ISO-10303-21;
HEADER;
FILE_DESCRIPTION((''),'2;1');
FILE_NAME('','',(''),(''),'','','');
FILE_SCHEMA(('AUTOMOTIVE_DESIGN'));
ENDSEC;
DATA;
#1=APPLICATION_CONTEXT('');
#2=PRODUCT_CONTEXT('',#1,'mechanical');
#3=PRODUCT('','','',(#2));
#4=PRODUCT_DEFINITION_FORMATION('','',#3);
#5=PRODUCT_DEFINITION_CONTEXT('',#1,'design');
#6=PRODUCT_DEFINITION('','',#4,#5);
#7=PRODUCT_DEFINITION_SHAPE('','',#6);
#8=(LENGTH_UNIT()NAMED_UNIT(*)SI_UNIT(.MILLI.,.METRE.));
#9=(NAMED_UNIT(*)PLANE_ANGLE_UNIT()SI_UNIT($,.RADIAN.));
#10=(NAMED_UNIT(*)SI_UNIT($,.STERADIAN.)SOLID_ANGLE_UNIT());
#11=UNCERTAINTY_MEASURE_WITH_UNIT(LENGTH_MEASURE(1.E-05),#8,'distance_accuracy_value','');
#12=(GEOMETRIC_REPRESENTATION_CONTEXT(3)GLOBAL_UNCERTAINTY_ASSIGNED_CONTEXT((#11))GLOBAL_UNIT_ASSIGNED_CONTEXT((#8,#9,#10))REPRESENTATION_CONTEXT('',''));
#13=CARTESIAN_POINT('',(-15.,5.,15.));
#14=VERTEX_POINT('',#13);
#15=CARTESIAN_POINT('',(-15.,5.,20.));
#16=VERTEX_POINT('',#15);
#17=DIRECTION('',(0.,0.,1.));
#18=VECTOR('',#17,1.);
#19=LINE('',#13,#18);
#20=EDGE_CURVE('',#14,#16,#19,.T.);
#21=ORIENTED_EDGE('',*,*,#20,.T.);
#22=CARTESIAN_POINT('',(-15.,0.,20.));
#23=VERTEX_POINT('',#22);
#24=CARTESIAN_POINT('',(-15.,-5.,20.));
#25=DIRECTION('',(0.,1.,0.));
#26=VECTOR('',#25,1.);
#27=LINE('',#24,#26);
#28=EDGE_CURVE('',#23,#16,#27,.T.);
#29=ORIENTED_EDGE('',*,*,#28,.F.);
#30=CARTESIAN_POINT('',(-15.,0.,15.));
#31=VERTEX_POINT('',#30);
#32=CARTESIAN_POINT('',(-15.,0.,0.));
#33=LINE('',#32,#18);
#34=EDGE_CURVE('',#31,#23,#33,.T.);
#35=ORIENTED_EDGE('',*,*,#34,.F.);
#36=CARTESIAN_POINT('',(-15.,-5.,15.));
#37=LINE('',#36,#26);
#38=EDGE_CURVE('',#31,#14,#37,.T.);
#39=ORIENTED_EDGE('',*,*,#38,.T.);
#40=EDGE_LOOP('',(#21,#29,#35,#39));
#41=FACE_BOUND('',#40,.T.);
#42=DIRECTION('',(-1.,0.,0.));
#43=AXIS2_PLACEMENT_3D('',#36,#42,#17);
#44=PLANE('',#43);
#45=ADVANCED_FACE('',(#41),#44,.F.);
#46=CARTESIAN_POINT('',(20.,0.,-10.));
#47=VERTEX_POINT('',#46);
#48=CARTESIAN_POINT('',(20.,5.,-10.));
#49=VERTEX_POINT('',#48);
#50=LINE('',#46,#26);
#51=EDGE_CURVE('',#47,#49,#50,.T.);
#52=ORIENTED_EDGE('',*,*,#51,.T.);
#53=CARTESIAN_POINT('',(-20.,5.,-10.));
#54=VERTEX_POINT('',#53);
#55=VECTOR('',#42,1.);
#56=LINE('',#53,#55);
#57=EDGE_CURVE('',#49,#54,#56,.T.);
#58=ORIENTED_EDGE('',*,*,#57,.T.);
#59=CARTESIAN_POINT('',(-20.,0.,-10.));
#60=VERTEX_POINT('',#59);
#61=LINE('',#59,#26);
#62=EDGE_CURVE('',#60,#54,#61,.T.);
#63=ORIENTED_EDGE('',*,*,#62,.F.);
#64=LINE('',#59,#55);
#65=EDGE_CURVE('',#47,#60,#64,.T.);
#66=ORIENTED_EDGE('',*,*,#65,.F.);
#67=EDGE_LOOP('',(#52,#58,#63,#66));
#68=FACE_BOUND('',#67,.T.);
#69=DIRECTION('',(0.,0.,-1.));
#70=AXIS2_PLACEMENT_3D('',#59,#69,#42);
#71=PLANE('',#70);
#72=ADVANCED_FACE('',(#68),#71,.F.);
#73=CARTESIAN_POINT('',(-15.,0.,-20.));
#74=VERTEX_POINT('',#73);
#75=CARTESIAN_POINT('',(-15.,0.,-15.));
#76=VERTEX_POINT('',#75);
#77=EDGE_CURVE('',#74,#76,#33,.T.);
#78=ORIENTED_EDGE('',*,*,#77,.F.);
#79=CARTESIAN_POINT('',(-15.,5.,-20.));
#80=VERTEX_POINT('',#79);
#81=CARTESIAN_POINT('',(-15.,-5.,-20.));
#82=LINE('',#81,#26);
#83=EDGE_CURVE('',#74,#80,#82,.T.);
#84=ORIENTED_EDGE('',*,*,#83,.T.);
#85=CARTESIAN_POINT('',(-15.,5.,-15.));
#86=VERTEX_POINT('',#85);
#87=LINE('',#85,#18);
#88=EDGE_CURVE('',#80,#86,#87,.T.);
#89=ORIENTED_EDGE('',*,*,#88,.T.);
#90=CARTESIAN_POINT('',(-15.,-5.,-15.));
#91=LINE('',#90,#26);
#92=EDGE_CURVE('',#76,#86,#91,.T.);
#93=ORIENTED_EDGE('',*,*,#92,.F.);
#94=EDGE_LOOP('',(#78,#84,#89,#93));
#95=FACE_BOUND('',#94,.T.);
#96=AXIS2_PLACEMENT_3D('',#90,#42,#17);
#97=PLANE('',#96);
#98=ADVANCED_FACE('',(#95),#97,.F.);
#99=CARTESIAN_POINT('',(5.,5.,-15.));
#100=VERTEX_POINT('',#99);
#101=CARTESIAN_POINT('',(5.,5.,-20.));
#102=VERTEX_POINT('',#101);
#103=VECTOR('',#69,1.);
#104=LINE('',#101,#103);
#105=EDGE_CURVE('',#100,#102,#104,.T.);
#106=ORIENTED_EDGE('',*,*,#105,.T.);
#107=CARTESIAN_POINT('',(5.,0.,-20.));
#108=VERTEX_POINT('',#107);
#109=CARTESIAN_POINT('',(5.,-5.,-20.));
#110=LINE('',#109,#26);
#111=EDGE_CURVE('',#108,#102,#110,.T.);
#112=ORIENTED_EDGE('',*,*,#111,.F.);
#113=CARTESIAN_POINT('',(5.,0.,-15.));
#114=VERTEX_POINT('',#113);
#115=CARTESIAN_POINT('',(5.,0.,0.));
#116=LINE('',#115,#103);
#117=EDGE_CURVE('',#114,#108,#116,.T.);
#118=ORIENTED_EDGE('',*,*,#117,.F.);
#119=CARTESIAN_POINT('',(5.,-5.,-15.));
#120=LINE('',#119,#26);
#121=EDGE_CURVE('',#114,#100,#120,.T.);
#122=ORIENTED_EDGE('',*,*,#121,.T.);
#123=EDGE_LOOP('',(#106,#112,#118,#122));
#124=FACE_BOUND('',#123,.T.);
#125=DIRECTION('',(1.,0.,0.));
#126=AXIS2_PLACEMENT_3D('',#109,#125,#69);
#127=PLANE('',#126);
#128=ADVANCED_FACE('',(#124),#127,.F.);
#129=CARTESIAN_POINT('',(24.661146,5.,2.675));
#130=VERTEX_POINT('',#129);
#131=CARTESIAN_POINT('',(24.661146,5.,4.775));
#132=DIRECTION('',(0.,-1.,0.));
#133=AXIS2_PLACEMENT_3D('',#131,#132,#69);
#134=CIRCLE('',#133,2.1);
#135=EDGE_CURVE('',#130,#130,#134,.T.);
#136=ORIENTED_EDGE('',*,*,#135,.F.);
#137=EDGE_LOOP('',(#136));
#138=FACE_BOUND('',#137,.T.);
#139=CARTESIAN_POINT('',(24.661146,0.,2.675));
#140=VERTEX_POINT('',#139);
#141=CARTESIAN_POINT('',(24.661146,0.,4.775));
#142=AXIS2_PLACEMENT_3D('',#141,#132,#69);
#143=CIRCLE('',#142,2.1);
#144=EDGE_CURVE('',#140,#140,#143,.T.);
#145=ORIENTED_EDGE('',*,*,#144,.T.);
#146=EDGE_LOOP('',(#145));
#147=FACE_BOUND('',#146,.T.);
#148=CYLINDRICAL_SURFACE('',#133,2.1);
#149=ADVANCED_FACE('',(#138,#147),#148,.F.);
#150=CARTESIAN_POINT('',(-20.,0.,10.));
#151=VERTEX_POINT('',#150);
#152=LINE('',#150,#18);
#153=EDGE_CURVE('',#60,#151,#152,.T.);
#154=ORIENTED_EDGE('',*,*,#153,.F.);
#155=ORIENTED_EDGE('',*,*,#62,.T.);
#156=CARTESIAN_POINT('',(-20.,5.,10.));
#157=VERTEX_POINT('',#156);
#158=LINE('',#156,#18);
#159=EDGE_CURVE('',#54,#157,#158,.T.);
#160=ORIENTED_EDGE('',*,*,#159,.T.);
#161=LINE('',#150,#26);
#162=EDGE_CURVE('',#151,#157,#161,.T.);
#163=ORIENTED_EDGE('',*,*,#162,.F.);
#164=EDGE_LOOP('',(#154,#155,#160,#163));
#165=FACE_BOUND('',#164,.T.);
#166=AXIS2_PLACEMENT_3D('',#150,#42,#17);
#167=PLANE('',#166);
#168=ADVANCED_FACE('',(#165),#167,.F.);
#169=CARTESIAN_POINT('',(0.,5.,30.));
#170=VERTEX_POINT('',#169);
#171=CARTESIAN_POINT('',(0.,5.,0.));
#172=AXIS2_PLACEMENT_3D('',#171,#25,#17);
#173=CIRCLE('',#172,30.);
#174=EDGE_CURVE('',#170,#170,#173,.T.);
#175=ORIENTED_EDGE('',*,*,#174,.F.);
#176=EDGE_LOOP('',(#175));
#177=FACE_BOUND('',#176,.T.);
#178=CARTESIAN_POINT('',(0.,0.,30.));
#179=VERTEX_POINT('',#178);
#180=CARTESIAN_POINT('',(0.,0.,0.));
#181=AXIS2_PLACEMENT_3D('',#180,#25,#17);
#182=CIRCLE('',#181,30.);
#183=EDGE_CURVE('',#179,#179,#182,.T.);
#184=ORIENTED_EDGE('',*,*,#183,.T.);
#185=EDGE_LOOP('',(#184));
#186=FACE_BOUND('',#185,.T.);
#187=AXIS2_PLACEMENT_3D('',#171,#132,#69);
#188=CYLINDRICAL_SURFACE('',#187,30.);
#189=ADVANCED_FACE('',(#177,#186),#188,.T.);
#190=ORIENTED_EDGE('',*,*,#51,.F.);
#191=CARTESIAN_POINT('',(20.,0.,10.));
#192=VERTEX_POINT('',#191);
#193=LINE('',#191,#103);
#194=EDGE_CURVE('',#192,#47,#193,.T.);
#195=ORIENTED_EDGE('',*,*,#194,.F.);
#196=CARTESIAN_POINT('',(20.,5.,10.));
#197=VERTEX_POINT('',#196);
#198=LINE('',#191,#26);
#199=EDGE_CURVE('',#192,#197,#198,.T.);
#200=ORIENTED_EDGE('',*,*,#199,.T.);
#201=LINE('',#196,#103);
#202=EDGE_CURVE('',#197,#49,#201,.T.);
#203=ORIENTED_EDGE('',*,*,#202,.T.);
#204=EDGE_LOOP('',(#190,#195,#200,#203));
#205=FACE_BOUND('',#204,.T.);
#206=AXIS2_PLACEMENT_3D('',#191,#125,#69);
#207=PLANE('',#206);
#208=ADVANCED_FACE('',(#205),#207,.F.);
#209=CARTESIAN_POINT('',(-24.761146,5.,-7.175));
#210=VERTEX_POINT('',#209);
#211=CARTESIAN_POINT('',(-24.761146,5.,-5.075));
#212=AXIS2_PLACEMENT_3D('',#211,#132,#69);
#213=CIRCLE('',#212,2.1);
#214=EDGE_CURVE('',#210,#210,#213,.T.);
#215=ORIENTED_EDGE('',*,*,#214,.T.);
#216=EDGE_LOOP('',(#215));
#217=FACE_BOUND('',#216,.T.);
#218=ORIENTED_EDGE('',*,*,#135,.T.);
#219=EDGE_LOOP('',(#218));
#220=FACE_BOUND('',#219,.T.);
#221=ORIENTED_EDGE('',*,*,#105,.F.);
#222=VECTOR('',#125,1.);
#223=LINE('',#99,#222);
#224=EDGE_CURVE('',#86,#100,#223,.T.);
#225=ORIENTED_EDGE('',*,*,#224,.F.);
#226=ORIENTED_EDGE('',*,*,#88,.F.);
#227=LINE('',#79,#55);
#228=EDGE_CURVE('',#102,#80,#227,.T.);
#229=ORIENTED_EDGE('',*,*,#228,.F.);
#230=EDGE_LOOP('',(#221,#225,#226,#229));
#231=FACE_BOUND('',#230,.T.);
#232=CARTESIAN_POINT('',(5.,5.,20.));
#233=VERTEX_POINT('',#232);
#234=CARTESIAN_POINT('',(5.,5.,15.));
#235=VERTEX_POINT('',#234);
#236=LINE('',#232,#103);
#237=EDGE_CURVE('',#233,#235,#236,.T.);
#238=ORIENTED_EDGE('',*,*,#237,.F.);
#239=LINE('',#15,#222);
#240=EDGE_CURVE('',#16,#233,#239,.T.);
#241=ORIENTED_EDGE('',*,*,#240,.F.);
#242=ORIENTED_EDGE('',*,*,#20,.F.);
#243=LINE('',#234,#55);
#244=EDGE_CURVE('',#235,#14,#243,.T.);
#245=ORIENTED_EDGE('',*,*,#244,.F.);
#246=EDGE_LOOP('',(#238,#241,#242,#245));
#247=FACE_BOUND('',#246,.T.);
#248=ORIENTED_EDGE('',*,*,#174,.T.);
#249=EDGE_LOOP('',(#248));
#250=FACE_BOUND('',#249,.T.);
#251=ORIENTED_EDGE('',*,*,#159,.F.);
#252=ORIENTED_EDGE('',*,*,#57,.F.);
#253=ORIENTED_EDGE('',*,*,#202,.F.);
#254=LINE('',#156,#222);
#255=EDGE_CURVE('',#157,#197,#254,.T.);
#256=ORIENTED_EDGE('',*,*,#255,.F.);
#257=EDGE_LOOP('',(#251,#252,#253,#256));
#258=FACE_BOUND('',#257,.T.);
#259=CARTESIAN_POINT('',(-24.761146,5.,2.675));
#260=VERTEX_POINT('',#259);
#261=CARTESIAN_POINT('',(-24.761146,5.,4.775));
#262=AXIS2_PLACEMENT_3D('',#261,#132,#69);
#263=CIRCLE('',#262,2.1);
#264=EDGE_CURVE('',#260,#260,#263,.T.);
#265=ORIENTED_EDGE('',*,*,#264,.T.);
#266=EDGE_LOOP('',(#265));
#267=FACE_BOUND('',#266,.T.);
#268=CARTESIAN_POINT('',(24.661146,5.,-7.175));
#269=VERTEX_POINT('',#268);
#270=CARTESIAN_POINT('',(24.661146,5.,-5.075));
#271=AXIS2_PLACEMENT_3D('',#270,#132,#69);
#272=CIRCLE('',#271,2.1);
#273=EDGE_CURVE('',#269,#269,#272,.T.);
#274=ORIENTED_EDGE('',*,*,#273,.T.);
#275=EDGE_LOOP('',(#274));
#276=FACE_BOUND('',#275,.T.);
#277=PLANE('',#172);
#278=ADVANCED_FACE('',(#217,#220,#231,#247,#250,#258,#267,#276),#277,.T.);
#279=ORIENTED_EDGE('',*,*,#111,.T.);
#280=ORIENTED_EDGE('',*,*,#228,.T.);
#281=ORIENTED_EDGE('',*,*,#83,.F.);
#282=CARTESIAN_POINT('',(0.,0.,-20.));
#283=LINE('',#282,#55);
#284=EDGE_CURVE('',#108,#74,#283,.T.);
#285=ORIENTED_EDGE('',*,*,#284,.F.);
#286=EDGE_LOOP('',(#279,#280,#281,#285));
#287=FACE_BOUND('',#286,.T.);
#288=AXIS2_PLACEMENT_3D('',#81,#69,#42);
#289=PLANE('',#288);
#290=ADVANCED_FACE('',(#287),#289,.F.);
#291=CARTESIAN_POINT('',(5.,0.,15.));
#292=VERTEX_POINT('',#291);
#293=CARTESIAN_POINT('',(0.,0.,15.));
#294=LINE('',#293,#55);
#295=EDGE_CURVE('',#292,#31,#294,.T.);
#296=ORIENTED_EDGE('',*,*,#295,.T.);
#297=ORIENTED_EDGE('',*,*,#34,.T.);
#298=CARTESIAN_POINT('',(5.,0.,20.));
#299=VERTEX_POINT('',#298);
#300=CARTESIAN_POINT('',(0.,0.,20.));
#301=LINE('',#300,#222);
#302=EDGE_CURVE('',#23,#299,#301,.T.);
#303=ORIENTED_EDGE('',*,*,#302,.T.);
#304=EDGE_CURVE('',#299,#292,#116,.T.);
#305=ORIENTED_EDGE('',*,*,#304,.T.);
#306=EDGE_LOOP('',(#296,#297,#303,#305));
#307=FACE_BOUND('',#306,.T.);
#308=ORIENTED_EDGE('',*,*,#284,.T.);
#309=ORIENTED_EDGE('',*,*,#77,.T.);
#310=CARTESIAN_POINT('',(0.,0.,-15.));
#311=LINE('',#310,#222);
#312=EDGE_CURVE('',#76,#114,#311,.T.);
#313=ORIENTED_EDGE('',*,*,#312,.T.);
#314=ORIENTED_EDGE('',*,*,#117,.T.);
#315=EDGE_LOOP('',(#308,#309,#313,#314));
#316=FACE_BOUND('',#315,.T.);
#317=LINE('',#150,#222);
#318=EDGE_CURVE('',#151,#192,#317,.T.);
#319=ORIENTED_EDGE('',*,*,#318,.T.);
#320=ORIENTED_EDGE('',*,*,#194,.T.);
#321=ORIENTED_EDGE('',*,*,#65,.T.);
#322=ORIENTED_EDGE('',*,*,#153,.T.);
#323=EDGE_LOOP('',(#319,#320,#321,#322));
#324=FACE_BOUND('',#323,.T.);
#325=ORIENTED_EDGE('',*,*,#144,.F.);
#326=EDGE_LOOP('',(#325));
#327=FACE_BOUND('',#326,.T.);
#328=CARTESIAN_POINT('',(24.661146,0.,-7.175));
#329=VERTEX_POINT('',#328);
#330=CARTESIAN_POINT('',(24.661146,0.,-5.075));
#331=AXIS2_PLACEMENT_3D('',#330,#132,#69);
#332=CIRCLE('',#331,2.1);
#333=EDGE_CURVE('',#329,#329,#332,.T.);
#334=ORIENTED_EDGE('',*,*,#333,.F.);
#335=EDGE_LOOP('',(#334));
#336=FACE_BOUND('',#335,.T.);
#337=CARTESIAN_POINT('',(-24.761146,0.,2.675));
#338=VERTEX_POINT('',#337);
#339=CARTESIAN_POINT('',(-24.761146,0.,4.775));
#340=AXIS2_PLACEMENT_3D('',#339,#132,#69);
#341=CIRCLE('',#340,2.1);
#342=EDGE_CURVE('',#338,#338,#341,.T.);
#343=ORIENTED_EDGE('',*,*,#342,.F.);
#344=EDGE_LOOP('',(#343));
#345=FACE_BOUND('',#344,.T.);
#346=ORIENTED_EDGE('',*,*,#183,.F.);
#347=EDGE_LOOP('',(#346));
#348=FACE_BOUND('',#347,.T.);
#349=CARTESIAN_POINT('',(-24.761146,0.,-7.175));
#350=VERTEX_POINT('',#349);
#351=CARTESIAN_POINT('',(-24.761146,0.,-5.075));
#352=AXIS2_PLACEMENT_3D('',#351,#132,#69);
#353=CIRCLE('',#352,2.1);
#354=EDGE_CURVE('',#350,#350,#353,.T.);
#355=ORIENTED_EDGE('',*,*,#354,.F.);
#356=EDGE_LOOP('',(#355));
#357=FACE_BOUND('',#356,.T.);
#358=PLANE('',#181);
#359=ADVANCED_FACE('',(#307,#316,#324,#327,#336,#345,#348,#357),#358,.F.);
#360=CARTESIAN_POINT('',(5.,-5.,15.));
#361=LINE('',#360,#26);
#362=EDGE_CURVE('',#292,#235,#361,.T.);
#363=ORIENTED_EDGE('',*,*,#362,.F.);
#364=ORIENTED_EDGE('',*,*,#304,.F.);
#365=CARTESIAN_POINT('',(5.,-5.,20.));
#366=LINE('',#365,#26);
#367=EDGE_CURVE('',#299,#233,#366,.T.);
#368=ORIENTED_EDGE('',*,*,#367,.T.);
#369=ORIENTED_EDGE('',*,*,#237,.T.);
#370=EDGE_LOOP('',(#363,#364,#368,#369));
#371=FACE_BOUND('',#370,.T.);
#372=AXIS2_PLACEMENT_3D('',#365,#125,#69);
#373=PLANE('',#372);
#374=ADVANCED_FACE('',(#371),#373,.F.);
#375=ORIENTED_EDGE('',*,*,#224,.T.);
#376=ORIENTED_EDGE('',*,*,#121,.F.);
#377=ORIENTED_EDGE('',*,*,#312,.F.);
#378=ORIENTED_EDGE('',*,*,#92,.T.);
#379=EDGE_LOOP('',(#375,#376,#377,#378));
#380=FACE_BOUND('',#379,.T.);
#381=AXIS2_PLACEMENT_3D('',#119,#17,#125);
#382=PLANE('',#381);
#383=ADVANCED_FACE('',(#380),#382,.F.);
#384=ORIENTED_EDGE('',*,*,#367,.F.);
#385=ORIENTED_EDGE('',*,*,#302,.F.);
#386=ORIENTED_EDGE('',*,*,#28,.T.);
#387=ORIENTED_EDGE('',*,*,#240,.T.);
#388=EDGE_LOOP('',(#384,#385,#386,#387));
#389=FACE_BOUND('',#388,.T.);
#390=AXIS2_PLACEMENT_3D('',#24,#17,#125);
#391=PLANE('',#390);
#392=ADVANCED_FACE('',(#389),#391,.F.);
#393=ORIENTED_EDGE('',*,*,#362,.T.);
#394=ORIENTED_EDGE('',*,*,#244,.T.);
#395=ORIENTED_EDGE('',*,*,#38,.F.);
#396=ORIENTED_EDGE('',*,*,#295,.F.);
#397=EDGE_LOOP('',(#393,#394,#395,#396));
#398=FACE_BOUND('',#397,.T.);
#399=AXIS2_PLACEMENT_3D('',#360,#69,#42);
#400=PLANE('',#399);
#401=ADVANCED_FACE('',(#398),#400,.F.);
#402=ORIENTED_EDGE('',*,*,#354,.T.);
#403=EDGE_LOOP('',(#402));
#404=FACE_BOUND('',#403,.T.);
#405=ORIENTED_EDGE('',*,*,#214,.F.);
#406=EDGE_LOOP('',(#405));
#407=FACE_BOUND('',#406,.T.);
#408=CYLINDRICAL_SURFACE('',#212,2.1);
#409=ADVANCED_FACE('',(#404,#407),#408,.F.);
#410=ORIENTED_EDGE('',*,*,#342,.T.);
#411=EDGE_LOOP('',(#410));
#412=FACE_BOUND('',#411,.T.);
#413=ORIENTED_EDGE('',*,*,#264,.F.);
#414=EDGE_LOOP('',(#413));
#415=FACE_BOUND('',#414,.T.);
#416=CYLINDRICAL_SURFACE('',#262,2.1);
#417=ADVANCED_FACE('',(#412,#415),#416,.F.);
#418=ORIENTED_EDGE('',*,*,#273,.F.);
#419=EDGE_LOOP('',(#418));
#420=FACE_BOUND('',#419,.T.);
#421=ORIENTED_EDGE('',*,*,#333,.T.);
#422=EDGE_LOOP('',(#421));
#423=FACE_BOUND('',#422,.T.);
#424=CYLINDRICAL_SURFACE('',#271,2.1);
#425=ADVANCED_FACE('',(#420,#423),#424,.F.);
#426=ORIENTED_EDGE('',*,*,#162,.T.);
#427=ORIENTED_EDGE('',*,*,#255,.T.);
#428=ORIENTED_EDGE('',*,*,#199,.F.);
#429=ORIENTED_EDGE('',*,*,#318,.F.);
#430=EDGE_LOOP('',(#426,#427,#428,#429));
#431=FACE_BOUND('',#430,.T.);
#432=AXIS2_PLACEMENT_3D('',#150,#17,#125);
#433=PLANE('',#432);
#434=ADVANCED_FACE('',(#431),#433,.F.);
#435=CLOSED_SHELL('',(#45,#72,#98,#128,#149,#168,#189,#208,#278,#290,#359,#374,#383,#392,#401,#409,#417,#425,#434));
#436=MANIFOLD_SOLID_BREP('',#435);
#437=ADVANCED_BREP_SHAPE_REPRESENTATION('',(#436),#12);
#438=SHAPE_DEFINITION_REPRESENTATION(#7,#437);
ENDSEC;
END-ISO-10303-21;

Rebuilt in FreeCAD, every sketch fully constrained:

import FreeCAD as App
import Part
import Sketcher
from FreeCAD import Vector
Q = App.Units.Quantity

doc = App.newDocument("Part")
body = doc.addObject("PartDesign::Body", "Body")

sketch1 = doc.addObject("Sketcher::SketchObject", "Sketch")
body.addObject(sketch1)
sketch1.AttachmentSupport = (doc.XZ_Plane, [""])
sketch1.MapMode = "FlatFace"
sketch1.addGeometry(Part.Circle(Vector(0, 0, 0), Vector(0, 0, 1), 30), False)
sketch1.addConstraint([
    Sketcher.Constraint("Coincident", 0, 3, -1, 1),
    Sketcher.Constraint("Diameter", 0, Q("60 mm")),
])
pad1 = doc.addObject("PartDesign::Pad", "Pad")
body.addObject(pad1)
pad1.Profile = sketch1
pad1.Length = 5
pad1.Reversed = True

sketch2 = doc.addObject("Sketcher::SketchObject", "Sketch001")
body.addObject(sketch2)
sketch2.AttachmentSupport = (doc.XZ_Plane, [""])
sketch2.MapMode = "FlatFace"
sketch2.AttachmentOffset = App.Placement(Vector(0, 0, -5), App.Rotation())
sketch2.addGeometry([
    Part.LineSegment(Vector(-20, -10, 0), Vector(-20, 10, 0)),
    Part.LineSegment(Vector(-20, 10, 0), Vector(20, 10, 0)),
    Part.LineSegment(Vector(20, 10, 0), Vector(20, -10, 0)),
    Part.LineSegment(Vector(20, -10, 0), Vector(-20, -10, 0)),
], False)
sketch2.addConstraint([
    Sketcher.Constraint("Coincident", 0, 2, 1, 1),
    Sketcher.Constraint("Coincident", 1, 2, 2, 1),
    Sketcher.Constraint("Coincident", 2, 2, 3, 1),
    Sketcher.Constraint("Coincident", 3, 2, 0, 1),
    Sketcher.Constraint("Vertical", 0),
    Sketcher.Constraint("Horizontal", 1),
    Sketcher.Constraint("Vertical", 2),
    Sketcher.Constraint("Horizontal", 3),
    Sketcher.Constraint("Symmetric", 0, 2, 2, 2, -1, 1),
    Sketcher.Constraint("DistanceX", 1, 1, 1, 2, Q("40 mm")),
    Sketcher.Constraint("DistanceY", 0, 1, 0, 2, Q("20 mm")),
])
pocket1 = doc.addObject("PartDesign::Pocket", "Pocket")
body.addObject(pocket1)
pocket1.Profile = sketch2
pocket1.Type = "ThroughAll"
pocket1.Reversed = True

sketch3 = doc.addObject("Sketcher::SketchObject", "Sketch002")
body.addObject(sketch3)
sketch3.AttachmentSupport = (doc.XZ_Plane, [""])
sketch3.MapMode = "FlatFace"
sketch3.AttachmentOffset = App.Placement(Vector(0, 0, -5), App.Rotation())
sketch3.addGeometry([
    Part.LineSegment(Vector(-15, -20, 0), Vector(-15, -15, 0)),
    Part.LineSegment(Vector(-15, -15, 0), Vector(5, -15, 0)),
    Part.LineSegment(Vector(5, -15, 0), Vector(5, -20, 0)),
    Part.LineSegment(Vector(5, -20, 0), Vector(-15, -20, 0)),
    Part.LineSegment(Vector(-15, 15, 0), Vector(-15, 20, 0)),
    Part.LineSegment(Vector(-15, 20, 0), Vector(5, 20, 0)),
    Part.LineSegment(Vector(5, 20, 0), Vector(5, 15, 0)),
    Part.LineSegment(Vector(5, 15, 0), Vector(-15, 15, 0)),
], False)
sketch3.addConstraint([
    Sketcher.Constraint("Coincident", 0, 2, 1, 1),
    Sketcher.Constraint("Coincident", 1, 2, 2, 1),
    Sketcher.Constraint("Coincident", 2, 2, 3, 1),
    Sketcher.Constraint("Coincident", 3, 2, 0, 1),
    Sketcher.Constraint("Coincident", 4, 2, 5, 1),
    Sketcher.Constraint("Coincident", 5, 2, 6, 1),
    Sketcher.Constraint("Coincident", 6, 2, 7, 1),
    Sketcher.Constraint("Coincident", 7, 2, 4, 1),
    Sketcher.Constraint("Vertical", 0),
    Sketcher.Constraint("Horizontal", 1),
    Sketcher.Constraint("Vertical", 2),
    Sketcher.Constraint("Horizontal", 3),
    Sketcher.Constraint("Vertical", 4),
    Sketcher.Constraint("Horizontal", 5),
    Sketcher.Constraint("Vertical", 6),
    Sketcher.Constraint("Horizontal", 7),
    Sketcher.Constraint("Symmetric", 3, 2, 4, 2, -1),
    Sketcher.Constraint("Symmetric", 1, 2, 6, 2, -1),
    Sketcher.Constraint("DistanceX", 1, 1, 1, 2, Q("20 mm")),
    Sketcher.Constraint("DistanceY", 0, 1, 0, 2, Q("5 mm")),
    Sketcher.Constraint("DistanceX", 0, 2, -1, 1, Q("15 mm")),
    Sketcher.Constraint("DistanceY", 0, 2, -1, 1, Q("15 mm")),
])
pocket2 = doc.addObject("PartDesign::Pocket", "Pocket001")
body.addObject(pocket2)
pocket2.Profile = sketch3
pocket2.Length = 10
pocket2.Reversed = True

sketch4 = doc.addObject("Sketcher::SketchObject", "Sketch003")
body.addObject(sketch4)
sketch4.AttachmentSupport = (doc.XZ_Plane, [""])
sketch4.MapMode = "FlatFace"
sketch4.addGeometry([
    Part.Circle(Vector(-24.761146, -5.075, 0), Vector(0, 0, 1), 2.1),
    Part.Circle(Vector(-24.761146, 4.775, 0), Vector(0, 0, 1), 2.1),
    Part.Circle(Vector(24.661146, 4.775, 0), Vector(0, 0, 1), 2.1),
    Part.Circle(Vector(24.661146, -5.075, 0), Vector(0, 0, 1), 2.1),
], False)
sketch4.addConstraint([
    Sketcher.Constraint("Equal", 0, 1),
    Sketcher.Constraint("Equal", 1, 2),
    Sketcher.Constraint("Equal", 2, 3),
    Sketcher.Constraint("Horizontal", 1, 3, 2, 3),
    Sketcher.Constraint("Horizontal", 0, 3, 3, 3),
    Sketcher.Constraint("Vertical", 0, 3, 1, 3),
    Sketcher.Constraint("Vertical", 2, 3, 3, 3),
    Sketcher.Constraint("Diameter", 0, Q("4.2 mm")),
    Sketcher.Constraint("DistanceY", 0, 3, 1, 3, Q("9.85 mm")),
    Sketcher.Constraint("DistanceY", 0, 3, -1, 1, Q("5.075 mm")),
    Sketcher.Constraint("DistanceX", 1, 3, 2, 3, Q("49.422291 mm")),
    Sketcher.Constraint("DistanceX", 0, 3, -1, 1, Q("24.761146 mm")),
])
pocket3 = doc.addObject("PartDesign::Pocket", "Pocket002")
body.addObject(pocket3)
pocket3.Profile = sketch4
pocket3.Type = "ThroughAll"

doc.recompute()
